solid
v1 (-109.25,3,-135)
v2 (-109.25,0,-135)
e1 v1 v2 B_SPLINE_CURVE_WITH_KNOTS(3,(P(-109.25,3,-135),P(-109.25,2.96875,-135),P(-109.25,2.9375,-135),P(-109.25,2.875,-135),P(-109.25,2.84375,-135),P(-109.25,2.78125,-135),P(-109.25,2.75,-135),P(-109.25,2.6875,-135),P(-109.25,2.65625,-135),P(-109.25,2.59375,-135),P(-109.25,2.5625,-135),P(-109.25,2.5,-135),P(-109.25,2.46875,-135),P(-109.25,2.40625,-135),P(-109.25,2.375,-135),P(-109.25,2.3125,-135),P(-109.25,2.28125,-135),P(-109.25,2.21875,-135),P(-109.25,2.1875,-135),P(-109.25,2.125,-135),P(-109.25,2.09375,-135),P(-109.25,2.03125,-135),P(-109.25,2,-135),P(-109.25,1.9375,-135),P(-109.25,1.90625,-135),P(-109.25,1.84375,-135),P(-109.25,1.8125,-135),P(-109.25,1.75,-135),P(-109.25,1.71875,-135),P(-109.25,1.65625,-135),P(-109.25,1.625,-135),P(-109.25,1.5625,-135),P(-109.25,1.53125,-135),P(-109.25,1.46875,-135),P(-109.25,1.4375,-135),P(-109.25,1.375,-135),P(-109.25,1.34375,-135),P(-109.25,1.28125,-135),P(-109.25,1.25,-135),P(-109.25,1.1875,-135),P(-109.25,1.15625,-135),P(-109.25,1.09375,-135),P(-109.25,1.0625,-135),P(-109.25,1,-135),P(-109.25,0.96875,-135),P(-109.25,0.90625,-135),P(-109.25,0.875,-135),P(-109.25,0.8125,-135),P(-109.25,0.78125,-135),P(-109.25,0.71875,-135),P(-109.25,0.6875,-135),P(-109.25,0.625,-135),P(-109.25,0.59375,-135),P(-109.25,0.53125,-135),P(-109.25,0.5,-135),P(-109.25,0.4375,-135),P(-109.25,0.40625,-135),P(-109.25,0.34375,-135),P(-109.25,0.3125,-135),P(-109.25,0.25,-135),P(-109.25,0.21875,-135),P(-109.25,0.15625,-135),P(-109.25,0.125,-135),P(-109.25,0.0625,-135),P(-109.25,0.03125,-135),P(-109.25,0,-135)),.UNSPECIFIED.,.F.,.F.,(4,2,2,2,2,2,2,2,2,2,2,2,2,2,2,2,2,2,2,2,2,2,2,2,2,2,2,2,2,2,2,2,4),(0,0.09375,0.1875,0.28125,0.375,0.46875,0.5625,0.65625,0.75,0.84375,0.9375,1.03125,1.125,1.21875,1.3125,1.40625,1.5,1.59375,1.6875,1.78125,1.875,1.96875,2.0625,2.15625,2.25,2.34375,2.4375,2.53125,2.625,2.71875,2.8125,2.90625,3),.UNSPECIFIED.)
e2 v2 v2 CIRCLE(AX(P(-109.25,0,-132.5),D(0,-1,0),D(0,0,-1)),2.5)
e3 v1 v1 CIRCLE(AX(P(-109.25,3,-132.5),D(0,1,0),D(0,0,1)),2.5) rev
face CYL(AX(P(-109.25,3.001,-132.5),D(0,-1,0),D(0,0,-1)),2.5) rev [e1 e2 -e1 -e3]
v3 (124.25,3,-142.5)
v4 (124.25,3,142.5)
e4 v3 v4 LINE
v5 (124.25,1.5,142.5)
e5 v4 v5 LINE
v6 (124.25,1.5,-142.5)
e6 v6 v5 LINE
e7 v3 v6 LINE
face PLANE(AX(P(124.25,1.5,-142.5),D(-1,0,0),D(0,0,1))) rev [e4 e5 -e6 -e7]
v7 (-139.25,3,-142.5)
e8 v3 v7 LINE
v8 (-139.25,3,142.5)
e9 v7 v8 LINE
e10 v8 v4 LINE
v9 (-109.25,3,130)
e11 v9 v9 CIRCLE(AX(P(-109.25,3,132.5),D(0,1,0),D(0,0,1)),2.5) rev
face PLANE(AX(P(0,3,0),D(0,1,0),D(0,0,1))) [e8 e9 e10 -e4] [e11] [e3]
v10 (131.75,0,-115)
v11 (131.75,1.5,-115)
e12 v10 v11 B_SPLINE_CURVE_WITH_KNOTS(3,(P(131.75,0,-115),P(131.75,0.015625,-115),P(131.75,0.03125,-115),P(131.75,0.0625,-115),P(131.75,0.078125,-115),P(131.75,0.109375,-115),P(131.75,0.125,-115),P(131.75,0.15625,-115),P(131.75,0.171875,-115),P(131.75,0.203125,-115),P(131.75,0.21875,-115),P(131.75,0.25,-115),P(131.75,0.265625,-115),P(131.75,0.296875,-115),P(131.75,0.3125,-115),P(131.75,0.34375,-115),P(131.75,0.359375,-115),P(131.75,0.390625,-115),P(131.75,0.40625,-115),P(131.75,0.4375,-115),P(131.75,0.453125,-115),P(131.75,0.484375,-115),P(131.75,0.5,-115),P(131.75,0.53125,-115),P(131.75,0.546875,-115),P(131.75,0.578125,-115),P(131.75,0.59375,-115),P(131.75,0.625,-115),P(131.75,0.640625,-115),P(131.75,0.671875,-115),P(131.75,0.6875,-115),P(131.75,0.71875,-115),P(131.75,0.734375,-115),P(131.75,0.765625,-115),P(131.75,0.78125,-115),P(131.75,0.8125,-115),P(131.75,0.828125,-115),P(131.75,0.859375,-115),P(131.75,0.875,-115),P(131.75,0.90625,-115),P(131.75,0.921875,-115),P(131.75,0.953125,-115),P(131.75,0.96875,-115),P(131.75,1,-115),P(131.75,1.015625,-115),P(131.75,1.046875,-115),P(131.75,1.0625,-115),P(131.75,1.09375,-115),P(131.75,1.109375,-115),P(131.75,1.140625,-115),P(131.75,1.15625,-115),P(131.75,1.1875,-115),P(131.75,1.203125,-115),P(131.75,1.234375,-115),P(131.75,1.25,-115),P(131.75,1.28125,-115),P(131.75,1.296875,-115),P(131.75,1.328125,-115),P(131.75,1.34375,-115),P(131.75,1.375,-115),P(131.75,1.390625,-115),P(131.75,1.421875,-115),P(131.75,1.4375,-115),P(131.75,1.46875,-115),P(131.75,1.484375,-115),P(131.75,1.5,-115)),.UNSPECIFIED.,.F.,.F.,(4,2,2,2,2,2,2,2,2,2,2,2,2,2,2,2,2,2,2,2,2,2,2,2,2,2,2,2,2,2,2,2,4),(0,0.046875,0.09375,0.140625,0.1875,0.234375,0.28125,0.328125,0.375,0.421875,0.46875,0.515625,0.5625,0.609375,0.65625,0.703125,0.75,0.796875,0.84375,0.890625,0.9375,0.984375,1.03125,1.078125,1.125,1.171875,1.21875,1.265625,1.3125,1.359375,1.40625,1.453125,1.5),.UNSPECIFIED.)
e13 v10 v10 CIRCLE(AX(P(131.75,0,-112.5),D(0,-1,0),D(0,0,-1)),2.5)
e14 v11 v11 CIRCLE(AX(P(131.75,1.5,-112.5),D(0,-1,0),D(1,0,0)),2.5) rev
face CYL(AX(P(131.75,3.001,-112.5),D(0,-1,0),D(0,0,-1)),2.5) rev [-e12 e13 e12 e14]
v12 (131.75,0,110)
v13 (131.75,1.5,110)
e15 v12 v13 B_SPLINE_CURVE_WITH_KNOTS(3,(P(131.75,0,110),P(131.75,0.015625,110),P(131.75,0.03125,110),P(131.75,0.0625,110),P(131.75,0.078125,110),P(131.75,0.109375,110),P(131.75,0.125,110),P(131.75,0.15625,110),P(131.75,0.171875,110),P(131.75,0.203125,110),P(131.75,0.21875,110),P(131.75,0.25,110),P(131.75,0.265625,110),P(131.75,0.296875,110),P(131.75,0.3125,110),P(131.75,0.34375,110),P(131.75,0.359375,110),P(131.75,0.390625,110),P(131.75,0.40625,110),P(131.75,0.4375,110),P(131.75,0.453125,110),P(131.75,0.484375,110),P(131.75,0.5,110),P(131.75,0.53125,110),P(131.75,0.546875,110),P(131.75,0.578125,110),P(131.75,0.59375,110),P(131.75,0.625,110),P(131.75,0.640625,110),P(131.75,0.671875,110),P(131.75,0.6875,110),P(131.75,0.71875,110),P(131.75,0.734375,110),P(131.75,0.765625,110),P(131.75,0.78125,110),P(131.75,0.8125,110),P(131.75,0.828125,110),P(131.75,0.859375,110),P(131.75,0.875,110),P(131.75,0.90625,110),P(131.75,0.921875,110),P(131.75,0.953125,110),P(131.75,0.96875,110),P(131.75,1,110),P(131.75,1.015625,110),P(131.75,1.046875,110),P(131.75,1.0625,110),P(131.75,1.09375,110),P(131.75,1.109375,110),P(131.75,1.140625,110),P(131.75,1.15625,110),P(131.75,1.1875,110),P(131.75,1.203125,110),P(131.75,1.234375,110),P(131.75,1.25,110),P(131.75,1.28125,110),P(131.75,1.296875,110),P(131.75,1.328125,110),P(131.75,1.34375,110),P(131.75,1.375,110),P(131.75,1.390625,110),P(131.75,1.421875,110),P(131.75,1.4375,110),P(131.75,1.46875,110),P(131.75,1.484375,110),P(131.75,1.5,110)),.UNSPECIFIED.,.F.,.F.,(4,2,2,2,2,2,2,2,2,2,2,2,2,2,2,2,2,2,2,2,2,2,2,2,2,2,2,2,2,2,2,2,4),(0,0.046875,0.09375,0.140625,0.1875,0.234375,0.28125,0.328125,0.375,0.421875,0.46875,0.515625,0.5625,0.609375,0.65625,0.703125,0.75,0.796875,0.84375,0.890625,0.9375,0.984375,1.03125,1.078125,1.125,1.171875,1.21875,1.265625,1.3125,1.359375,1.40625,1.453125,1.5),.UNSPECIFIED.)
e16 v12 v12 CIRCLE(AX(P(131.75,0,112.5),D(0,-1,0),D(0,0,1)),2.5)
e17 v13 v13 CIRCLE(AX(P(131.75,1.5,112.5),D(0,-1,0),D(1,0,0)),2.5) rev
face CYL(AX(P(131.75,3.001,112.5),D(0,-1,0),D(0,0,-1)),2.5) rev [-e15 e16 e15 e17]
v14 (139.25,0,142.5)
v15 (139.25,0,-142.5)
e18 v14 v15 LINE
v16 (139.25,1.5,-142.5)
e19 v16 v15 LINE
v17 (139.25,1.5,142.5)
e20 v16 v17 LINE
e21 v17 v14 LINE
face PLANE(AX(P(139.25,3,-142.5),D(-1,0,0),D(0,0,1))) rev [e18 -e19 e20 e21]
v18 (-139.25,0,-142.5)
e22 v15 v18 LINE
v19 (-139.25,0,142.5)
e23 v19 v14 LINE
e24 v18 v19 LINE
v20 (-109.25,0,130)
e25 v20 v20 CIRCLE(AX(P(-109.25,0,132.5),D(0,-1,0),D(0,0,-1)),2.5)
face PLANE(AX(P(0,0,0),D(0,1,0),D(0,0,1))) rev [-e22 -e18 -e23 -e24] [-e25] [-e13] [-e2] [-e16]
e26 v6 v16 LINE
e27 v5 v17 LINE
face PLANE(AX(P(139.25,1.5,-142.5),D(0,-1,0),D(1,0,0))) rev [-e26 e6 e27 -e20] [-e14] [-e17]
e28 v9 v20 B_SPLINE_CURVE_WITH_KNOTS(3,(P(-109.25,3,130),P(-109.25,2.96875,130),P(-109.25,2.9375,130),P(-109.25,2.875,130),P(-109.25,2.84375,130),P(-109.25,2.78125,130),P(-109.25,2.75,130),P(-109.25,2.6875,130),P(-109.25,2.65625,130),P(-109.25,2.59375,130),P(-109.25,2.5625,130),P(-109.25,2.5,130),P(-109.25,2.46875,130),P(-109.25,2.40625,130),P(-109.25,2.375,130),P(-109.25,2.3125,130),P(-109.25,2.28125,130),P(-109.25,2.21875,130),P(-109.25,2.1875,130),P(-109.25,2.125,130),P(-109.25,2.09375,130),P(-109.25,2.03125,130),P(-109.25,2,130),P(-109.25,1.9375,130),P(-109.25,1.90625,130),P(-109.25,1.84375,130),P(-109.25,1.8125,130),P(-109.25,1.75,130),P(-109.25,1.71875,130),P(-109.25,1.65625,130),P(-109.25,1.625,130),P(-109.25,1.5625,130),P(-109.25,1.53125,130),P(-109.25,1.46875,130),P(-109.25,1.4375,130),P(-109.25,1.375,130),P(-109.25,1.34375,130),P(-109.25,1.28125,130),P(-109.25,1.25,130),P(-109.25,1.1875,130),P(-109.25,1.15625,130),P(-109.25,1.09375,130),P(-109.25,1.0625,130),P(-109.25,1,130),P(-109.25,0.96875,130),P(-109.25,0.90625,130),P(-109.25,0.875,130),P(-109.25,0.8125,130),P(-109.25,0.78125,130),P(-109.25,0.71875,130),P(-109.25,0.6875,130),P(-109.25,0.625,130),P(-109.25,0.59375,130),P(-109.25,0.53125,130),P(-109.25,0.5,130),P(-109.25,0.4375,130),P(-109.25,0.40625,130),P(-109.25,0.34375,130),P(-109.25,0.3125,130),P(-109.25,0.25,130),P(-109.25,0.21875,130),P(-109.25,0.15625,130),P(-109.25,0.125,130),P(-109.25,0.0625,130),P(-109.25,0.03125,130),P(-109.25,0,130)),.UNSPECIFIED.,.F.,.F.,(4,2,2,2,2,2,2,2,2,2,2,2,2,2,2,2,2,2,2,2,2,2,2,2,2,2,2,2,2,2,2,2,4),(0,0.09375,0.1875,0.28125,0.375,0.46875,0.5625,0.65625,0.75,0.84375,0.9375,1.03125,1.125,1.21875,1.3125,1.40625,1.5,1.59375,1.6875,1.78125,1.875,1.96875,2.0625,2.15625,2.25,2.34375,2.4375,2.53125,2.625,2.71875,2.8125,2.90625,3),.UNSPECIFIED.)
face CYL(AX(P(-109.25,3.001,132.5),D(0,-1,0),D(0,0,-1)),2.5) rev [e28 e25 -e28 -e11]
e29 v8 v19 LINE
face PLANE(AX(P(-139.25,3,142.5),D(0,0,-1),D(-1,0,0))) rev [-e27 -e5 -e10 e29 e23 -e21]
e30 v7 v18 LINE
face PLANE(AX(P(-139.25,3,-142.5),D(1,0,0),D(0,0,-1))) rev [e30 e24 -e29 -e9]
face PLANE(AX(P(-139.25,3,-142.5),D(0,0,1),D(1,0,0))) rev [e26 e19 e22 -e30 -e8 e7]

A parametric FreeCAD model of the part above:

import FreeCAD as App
import Part
import Sketcher

V = App.Vector


def add_polygon(sketch, points):
    """Adds a closed chain of lines whose ends are joined by coincident constraints."""
    first, n = sketch.GeometryCount, len(points)
    for a, b in zip(points, points[1:] + points[:1]):
        sketch.addGeometry(Part.LineSegment(App.Vector(*a, 0), App.Vector(*b, 0)), False)
    for i in range(n):
        sketch.addConstraint(Sketcher.Constraint("Coincident", first + i, 2, first + (i + 1) % n, 1))

doc = App.newDocument("Part")
body = doc.addObject("PartDesign::Body", "Body")

# Sketch on XZ plane
sketch1 = doc.addObject("Sketcher::SketchObject", "Sketch")
body.addObject(sketch1)
sketch1.AttachmentSupport = (doc.XZ_Plane, [""])
sketch1.MapMode = "FlatFace"
add_polygon(sketch1, [(-139, -142), (-139, 142), (139, 142), (139, -142)])  # lines 0-3
sketch1.addConstraint([
    Sketcher.Constraint("Vertical", 0),
    Sketcher.Constraint("Horizontal", 1),
    Sketcher.Constraint("Vertical", 2),
    Sketcher.Constraint("Horizontal", 3),
    Sketcher.Constraint("Symmetric", 0, 2, 2, 2, -1, 1),
    Sketcher.Constraint("DistanceY", 0, 1, 0, 2, 285.0),
    Sketcher.Constraint("DistanceX", 1, 1, 1, 2, 278.5),
])
pad1 = doc.addObject("PartDesign::Pad", "Pad")
body.addObject(pad1)
pad1.Profile = sketch1
pad1.Length = 3
pad1.Reversed = True

# Sketch on XY plane
sketch2 = doc.addObject("Sketcher::SketchObject", "Sketch001")
body.addObject(sketch2)
sketch2.AttachmentSupport = (doc.XY_Plane, [""])
sketch2.MapMode = "FlatFace"
sketch2.AttachmentOffset = App.Placement(V(0, 0, 142.5), App.Rotation())
add_polygon(sketch2, [(124.2, 3), (124.2, 1.5), (139.2, 1.5), (139.2, 3)])  # lines 0-3
sketch2.addConstraint([
    Sketcher.Constraint("Vertical", 0),
    Sketcher.Constraint("Horizontal", 1),
    Sketcher.Constraint("Vertical", 2),
    Sketcher.Constraint("Horizontal", 3),
    Sketcher.Constraint("DistanceX", 1, 1, 1, 2, 15.0),
    Sketcher.Constraint("DistanceY", 0, 2, 0, 1, 1.5),
    Sketcher.Constraint("DistanceY", -1, 1, 2, 2, 3.0),
    Sketcher.Constraint("DistanceX", -1, 1, 0, 2, 124.25),
])
pocket1 = doc.addObject("PartDesign::Pocket", "Pocket")
body.addObject(pocket1)
pocket1.Profile = sketch2
pocket1.Type = "ThroughAll"

# Sketch on XZ plane
sketch3 = doc.addObject("Sketcher::SketchObject", "Sketch002")
body.addObject(sketch3)
sketch3.AttachmentSupport = (doc.XZ_Plane, [""])
sketch3.MapMode = "FlatFace"
sketch3.addGeometry(Part.Circle(V(-109.2, -132.5, 0), V(0, 0, 1), 2.5), False)
sketch3.addConstraint([
    Sketcher.Constraint("Diameter", 0, 5.0),
    Sketcher.Constraint("DistanceY", 0, 3, -1, 1, 132.5),
    Sketcher.Constraint("DistanceX", 0, 3, -1, 1, 109.25),
])
pocket2 = doc.addObject("PartDesign::Pocket", "Pocket001")
body.addObject(pocket2)
pocket2.Profile = sketch3
pocket2.Type = "UpToFirst"

# Sketch on XZ plane
sketch4 = doc.addObject("Sketcher::SketchObject", "Sketch003")
body.addObject(sketch4)
sketch4.AttachmentSupport = (doc.XZ_Plane, [""])
sketch4.MapMode = "FlatFace"
sketch4.addGeometry(Part.Circle(V(-109.2, 132.5, 0), V(0, 0, 1), 2.5), False)
sketch4.addConstraint([
    Sketcher.Constraint("Diameter", 0, 5.0),
    Sketcher.Constraint("DistanceY", -1, 1, 0, 3, 132.5),
    Sketcher.Constraint("DistanceX", 0, 3, -1, 1, 109.25),
])
pocket3 = doc.addObject("PartDesign::Pocket", "Pocket002")
body.addObject(pocket3)
pocket3.Profile = sketch4
pocket3.Type = "UpToFirst"

# Sketch on XZ plane
sketch5 = doc.addObject("Sketcher::SketchObject", "Sketch004")
body.addObject(sketch5)
sketch5.AttachmentSupport = (doc.XZ_Plane, [""])
sketch5.MapMode = "FlatFace"
sketch5.addGeometry(Part.Circle(V(131.8, -112.5, 0), V(0, 0, 1), 2.5), False)
sketch5.addConstraint([
    Sketcher.Constraint("Diameter", 0, 5.0),
    Sketcher.Constraint("DistanceY", 0, 3, -1, 1, 112.5),
    Sketcher.Constraint("DistanceX", -1, 1, 0, 3, 131.75),
])
pocket4 = doc.addObject("PartDesign::Pocket", "Pocket003")
body.addObject(pocket4)
pocket4.Profile = sketch5
pocket4.Type = "UpToFirst"

# Sketch on XZ plane
sketch6 = doc.addObject("Sketcher::SketchObject", "Sketch005")
body.addObject(sketch6)
sketch6.AttachmentSupport = (doc.XZ_Plane, [""])
sketch6.MapMode = "FlatFace"
sketch6.addGeometry(Part.Circle(V(131.8, 112.5, 0), V(0, 0, 1), 2.5), False)
sketch6.addConstraint([
    Sketcher.Constraint("Diameter", 0, 5.0),
    Sketcher.Constraint("DistanceY", -1, 1, 0, 3, 112.5),
    Sketcher.Constraint("DistanceX", -1, 1, 0, 3, 131.75),
])
pocket5 = doc.addObject("PartDesign::Pocket", "Pocket004")
body.addObject(pocket5)
pocket5.Profile = sketch6
pocket5.Type = "UpToFirst"

doc.recompute()
